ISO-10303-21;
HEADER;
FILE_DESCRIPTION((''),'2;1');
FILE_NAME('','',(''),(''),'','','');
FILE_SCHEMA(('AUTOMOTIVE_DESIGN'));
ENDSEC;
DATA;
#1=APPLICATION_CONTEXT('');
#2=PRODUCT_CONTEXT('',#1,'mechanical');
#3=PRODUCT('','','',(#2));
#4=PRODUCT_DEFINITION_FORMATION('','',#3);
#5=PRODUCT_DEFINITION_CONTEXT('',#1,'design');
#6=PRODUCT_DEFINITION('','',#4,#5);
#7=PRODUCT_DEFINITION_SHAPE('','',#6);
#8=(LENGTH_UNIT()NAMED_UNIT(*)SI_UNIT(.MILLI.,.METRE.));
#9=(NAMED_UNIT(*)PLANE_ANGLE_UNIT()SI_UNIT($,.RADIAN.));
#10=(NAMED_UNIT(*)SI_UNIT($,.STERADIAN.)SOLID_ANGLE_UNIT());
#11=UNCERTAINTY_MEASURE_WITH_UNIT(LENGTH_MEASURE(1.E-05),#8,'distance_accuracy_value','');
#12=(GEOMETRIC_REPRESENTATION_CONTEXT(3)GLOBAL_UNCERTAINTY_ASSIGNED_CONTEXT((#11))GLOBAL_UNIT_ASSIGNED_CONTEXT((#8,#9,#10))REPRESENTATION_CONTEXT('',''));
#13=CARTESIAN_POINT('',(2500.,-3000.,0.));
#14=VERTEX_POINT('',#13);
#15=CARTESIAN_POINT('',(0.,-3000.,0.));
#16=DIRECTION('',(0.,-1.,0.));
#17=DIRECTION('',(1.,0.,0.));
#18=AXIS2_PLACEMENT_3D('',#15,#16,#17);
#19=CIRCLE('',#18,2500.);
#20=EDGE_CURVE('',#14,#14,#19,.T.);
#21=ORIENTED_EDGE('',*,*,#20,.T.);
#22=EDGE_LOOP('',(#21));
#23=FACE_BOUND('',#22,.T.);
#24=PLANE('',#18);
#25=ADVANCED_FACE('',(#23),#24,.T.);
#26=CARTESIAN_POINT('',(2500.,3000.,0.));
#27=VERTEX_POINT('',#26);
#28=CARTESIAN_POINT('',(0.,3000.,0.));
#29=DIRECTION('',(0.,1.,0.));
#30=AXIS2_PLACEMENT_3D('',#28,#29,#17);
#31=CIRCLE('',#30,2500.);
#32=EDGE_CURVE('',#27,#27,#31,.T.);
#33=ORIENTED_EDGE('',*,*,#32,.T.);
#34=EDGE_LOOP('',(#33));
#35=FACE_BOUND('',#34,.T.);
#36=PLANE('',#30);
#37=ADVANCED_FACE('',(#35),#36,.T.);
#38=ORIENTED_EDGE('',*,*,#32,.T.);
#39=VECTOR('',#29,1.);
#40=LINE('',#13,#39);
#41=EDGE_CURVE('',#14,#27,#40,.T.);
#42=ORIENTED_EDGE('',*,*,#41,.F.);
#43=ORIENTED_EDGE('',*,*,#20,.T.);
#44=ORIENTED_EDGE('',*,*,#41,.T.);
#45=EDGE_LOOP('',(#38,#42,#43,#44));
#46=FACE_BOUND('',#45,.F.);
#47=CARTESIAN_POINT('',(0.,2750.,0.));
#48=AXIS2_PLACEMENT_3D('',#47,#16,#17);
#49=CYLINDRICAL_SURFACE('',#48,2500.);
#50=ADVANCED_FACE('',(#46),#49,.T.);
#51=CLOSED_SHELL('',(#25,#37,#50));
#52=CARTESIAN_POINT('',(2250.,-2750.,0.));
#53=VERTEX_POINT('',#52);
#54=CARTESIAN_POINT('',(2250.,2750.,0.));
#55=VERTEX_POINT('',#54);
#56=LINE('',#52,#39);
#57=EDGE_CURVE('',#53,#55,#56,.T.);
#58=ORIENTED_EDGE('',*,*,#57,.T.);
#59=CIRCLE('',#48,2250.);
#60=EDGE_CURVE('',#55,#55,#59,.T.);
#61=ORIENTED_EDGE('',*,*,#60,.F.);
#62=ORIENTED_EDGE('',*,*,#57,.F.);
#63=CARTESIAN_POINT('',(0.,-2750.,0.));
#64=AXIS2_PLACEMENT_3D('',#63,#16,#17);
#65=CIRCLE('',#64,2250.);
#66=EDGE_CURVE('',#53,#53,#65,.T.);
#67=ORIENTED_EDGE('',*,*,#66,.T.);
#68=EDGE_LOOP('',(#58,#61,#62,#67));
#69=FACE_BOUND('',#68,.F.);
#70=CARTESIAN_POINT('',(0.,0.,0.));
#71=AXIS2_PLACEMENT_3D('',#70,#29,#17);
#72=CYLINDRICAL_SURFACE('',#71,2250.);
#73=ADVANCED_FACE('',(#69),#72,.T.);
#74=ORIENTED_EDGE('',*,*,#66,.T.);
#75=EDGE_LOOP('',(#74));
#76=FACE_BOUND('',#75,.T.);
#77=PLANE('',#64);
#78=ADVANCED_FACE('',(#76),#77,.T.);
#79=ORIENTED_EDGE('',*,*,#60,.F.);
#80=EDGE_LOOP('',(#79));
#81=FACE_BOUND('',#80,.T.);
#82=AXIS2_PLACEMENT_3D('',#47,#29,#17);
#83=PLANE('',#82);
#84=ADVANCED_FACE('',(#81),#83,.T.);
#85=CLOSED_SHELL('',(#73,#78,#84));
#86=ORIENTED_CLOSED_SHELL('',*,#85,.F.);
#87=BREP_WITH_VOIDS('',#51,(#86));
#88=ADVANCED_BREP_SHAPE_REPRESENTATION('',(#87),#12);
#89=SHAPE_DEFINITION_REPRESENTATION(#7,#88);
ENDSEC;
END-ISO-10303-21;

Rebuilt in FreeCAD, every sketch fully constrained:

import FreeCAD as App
import Part
import Sketcher

V = App.Vector
Q = App.Units.Quantity

doc = App.newDocument("Part")
body = doc.addObject("PartDesign::Body", "Body")

sketch1 = doc.addObject("Sketcher::SketchObject", "Sketch")
body.addObject(sketch1)
sketch1.AttachmentSupport = (doc.XZ_Plane, [""])
sketch1.MapMode = "FlatFace"
sketch1.addGeometry([
    Part.Circle(V(0, 0, 0), V(0, 0, 1), 2500),
    Part.Circle(V(0, 0, 0), V(0, 0, 1), 2250),
], False)
sketch1.addConstraint([
    Sketcher.Constraint("Coincident", 0, 3, -1, 1),
    Sketcher.Constraint("Coincident", 1, 3, -1, 1),
    Sketcher.Constraint("Diameter", 0, Q("5000 mm")),
    Sketcher.Constraint("Diameter", 1, Q("4500 mm")),
])
pad1 = doc.addObject("PartDesign::Pad", "Pad")
body.addObject(pad1)
pad1.Profile = sketch1
pad1.Length = 5500
pad1.Midplane = True

sketch2 = doc.addObject("Sketcher::SketchObject", "Sketch001")
body.addObject(sketch2)
sketch2.AttachmentSupport = (doc.XZ_Plane, [""])
sketch2.MapMode = "FlatFace"
sketch2.AttachmentOffset = App.Placement(V(0, 0, 2750), App.Rotation())
sketch2.addGeometry(Part.Circle(V(0, 0, 0), V(0, 0, 1), 2500), False)
sketch2.addConstraint([
    Sketcher.Constraint("Coincident", 0, 3, -1, 1),
    Sketcher.Constraint("Diameter", 0, Q("5000 mm")),
])
pad2 = doc.addObject("PartDesign::Pad", "Pad001")
body.addObject(pad2)
pad2.Profile = sketch2
pad2.Length = 250

sketch3 = doc.addObject("Sketcher::SketchObject", "Sketch002")
body.addObject(sketch3)
sketch3.AttachmentSupport = (doc.XZ_Plane, [""])
sketch3.MapMode = "FlatFace"
sketch3.AttachmentOffset = App.Placement(V(0, 0, -2750), App.Rotation())
sketch3.addGeometry(Part.Circle(V(0, 0, 0), V(0, 0, 1), 2500), False)
sketch3.addConstraint([
    Sketcher.Constraint("Coincident", 0, 3, -1, 1),
    Sketcher.Constraint("Diameter", 0, Q("5000 mm")),
])
pad3 = doc.addObject("PartDesign::Pad", "Pad002")
body.addObject(pad3)
pad3.Profile = sketch3
pad3.Length = 250
pad3.Reversed = True

doc.recompute()
